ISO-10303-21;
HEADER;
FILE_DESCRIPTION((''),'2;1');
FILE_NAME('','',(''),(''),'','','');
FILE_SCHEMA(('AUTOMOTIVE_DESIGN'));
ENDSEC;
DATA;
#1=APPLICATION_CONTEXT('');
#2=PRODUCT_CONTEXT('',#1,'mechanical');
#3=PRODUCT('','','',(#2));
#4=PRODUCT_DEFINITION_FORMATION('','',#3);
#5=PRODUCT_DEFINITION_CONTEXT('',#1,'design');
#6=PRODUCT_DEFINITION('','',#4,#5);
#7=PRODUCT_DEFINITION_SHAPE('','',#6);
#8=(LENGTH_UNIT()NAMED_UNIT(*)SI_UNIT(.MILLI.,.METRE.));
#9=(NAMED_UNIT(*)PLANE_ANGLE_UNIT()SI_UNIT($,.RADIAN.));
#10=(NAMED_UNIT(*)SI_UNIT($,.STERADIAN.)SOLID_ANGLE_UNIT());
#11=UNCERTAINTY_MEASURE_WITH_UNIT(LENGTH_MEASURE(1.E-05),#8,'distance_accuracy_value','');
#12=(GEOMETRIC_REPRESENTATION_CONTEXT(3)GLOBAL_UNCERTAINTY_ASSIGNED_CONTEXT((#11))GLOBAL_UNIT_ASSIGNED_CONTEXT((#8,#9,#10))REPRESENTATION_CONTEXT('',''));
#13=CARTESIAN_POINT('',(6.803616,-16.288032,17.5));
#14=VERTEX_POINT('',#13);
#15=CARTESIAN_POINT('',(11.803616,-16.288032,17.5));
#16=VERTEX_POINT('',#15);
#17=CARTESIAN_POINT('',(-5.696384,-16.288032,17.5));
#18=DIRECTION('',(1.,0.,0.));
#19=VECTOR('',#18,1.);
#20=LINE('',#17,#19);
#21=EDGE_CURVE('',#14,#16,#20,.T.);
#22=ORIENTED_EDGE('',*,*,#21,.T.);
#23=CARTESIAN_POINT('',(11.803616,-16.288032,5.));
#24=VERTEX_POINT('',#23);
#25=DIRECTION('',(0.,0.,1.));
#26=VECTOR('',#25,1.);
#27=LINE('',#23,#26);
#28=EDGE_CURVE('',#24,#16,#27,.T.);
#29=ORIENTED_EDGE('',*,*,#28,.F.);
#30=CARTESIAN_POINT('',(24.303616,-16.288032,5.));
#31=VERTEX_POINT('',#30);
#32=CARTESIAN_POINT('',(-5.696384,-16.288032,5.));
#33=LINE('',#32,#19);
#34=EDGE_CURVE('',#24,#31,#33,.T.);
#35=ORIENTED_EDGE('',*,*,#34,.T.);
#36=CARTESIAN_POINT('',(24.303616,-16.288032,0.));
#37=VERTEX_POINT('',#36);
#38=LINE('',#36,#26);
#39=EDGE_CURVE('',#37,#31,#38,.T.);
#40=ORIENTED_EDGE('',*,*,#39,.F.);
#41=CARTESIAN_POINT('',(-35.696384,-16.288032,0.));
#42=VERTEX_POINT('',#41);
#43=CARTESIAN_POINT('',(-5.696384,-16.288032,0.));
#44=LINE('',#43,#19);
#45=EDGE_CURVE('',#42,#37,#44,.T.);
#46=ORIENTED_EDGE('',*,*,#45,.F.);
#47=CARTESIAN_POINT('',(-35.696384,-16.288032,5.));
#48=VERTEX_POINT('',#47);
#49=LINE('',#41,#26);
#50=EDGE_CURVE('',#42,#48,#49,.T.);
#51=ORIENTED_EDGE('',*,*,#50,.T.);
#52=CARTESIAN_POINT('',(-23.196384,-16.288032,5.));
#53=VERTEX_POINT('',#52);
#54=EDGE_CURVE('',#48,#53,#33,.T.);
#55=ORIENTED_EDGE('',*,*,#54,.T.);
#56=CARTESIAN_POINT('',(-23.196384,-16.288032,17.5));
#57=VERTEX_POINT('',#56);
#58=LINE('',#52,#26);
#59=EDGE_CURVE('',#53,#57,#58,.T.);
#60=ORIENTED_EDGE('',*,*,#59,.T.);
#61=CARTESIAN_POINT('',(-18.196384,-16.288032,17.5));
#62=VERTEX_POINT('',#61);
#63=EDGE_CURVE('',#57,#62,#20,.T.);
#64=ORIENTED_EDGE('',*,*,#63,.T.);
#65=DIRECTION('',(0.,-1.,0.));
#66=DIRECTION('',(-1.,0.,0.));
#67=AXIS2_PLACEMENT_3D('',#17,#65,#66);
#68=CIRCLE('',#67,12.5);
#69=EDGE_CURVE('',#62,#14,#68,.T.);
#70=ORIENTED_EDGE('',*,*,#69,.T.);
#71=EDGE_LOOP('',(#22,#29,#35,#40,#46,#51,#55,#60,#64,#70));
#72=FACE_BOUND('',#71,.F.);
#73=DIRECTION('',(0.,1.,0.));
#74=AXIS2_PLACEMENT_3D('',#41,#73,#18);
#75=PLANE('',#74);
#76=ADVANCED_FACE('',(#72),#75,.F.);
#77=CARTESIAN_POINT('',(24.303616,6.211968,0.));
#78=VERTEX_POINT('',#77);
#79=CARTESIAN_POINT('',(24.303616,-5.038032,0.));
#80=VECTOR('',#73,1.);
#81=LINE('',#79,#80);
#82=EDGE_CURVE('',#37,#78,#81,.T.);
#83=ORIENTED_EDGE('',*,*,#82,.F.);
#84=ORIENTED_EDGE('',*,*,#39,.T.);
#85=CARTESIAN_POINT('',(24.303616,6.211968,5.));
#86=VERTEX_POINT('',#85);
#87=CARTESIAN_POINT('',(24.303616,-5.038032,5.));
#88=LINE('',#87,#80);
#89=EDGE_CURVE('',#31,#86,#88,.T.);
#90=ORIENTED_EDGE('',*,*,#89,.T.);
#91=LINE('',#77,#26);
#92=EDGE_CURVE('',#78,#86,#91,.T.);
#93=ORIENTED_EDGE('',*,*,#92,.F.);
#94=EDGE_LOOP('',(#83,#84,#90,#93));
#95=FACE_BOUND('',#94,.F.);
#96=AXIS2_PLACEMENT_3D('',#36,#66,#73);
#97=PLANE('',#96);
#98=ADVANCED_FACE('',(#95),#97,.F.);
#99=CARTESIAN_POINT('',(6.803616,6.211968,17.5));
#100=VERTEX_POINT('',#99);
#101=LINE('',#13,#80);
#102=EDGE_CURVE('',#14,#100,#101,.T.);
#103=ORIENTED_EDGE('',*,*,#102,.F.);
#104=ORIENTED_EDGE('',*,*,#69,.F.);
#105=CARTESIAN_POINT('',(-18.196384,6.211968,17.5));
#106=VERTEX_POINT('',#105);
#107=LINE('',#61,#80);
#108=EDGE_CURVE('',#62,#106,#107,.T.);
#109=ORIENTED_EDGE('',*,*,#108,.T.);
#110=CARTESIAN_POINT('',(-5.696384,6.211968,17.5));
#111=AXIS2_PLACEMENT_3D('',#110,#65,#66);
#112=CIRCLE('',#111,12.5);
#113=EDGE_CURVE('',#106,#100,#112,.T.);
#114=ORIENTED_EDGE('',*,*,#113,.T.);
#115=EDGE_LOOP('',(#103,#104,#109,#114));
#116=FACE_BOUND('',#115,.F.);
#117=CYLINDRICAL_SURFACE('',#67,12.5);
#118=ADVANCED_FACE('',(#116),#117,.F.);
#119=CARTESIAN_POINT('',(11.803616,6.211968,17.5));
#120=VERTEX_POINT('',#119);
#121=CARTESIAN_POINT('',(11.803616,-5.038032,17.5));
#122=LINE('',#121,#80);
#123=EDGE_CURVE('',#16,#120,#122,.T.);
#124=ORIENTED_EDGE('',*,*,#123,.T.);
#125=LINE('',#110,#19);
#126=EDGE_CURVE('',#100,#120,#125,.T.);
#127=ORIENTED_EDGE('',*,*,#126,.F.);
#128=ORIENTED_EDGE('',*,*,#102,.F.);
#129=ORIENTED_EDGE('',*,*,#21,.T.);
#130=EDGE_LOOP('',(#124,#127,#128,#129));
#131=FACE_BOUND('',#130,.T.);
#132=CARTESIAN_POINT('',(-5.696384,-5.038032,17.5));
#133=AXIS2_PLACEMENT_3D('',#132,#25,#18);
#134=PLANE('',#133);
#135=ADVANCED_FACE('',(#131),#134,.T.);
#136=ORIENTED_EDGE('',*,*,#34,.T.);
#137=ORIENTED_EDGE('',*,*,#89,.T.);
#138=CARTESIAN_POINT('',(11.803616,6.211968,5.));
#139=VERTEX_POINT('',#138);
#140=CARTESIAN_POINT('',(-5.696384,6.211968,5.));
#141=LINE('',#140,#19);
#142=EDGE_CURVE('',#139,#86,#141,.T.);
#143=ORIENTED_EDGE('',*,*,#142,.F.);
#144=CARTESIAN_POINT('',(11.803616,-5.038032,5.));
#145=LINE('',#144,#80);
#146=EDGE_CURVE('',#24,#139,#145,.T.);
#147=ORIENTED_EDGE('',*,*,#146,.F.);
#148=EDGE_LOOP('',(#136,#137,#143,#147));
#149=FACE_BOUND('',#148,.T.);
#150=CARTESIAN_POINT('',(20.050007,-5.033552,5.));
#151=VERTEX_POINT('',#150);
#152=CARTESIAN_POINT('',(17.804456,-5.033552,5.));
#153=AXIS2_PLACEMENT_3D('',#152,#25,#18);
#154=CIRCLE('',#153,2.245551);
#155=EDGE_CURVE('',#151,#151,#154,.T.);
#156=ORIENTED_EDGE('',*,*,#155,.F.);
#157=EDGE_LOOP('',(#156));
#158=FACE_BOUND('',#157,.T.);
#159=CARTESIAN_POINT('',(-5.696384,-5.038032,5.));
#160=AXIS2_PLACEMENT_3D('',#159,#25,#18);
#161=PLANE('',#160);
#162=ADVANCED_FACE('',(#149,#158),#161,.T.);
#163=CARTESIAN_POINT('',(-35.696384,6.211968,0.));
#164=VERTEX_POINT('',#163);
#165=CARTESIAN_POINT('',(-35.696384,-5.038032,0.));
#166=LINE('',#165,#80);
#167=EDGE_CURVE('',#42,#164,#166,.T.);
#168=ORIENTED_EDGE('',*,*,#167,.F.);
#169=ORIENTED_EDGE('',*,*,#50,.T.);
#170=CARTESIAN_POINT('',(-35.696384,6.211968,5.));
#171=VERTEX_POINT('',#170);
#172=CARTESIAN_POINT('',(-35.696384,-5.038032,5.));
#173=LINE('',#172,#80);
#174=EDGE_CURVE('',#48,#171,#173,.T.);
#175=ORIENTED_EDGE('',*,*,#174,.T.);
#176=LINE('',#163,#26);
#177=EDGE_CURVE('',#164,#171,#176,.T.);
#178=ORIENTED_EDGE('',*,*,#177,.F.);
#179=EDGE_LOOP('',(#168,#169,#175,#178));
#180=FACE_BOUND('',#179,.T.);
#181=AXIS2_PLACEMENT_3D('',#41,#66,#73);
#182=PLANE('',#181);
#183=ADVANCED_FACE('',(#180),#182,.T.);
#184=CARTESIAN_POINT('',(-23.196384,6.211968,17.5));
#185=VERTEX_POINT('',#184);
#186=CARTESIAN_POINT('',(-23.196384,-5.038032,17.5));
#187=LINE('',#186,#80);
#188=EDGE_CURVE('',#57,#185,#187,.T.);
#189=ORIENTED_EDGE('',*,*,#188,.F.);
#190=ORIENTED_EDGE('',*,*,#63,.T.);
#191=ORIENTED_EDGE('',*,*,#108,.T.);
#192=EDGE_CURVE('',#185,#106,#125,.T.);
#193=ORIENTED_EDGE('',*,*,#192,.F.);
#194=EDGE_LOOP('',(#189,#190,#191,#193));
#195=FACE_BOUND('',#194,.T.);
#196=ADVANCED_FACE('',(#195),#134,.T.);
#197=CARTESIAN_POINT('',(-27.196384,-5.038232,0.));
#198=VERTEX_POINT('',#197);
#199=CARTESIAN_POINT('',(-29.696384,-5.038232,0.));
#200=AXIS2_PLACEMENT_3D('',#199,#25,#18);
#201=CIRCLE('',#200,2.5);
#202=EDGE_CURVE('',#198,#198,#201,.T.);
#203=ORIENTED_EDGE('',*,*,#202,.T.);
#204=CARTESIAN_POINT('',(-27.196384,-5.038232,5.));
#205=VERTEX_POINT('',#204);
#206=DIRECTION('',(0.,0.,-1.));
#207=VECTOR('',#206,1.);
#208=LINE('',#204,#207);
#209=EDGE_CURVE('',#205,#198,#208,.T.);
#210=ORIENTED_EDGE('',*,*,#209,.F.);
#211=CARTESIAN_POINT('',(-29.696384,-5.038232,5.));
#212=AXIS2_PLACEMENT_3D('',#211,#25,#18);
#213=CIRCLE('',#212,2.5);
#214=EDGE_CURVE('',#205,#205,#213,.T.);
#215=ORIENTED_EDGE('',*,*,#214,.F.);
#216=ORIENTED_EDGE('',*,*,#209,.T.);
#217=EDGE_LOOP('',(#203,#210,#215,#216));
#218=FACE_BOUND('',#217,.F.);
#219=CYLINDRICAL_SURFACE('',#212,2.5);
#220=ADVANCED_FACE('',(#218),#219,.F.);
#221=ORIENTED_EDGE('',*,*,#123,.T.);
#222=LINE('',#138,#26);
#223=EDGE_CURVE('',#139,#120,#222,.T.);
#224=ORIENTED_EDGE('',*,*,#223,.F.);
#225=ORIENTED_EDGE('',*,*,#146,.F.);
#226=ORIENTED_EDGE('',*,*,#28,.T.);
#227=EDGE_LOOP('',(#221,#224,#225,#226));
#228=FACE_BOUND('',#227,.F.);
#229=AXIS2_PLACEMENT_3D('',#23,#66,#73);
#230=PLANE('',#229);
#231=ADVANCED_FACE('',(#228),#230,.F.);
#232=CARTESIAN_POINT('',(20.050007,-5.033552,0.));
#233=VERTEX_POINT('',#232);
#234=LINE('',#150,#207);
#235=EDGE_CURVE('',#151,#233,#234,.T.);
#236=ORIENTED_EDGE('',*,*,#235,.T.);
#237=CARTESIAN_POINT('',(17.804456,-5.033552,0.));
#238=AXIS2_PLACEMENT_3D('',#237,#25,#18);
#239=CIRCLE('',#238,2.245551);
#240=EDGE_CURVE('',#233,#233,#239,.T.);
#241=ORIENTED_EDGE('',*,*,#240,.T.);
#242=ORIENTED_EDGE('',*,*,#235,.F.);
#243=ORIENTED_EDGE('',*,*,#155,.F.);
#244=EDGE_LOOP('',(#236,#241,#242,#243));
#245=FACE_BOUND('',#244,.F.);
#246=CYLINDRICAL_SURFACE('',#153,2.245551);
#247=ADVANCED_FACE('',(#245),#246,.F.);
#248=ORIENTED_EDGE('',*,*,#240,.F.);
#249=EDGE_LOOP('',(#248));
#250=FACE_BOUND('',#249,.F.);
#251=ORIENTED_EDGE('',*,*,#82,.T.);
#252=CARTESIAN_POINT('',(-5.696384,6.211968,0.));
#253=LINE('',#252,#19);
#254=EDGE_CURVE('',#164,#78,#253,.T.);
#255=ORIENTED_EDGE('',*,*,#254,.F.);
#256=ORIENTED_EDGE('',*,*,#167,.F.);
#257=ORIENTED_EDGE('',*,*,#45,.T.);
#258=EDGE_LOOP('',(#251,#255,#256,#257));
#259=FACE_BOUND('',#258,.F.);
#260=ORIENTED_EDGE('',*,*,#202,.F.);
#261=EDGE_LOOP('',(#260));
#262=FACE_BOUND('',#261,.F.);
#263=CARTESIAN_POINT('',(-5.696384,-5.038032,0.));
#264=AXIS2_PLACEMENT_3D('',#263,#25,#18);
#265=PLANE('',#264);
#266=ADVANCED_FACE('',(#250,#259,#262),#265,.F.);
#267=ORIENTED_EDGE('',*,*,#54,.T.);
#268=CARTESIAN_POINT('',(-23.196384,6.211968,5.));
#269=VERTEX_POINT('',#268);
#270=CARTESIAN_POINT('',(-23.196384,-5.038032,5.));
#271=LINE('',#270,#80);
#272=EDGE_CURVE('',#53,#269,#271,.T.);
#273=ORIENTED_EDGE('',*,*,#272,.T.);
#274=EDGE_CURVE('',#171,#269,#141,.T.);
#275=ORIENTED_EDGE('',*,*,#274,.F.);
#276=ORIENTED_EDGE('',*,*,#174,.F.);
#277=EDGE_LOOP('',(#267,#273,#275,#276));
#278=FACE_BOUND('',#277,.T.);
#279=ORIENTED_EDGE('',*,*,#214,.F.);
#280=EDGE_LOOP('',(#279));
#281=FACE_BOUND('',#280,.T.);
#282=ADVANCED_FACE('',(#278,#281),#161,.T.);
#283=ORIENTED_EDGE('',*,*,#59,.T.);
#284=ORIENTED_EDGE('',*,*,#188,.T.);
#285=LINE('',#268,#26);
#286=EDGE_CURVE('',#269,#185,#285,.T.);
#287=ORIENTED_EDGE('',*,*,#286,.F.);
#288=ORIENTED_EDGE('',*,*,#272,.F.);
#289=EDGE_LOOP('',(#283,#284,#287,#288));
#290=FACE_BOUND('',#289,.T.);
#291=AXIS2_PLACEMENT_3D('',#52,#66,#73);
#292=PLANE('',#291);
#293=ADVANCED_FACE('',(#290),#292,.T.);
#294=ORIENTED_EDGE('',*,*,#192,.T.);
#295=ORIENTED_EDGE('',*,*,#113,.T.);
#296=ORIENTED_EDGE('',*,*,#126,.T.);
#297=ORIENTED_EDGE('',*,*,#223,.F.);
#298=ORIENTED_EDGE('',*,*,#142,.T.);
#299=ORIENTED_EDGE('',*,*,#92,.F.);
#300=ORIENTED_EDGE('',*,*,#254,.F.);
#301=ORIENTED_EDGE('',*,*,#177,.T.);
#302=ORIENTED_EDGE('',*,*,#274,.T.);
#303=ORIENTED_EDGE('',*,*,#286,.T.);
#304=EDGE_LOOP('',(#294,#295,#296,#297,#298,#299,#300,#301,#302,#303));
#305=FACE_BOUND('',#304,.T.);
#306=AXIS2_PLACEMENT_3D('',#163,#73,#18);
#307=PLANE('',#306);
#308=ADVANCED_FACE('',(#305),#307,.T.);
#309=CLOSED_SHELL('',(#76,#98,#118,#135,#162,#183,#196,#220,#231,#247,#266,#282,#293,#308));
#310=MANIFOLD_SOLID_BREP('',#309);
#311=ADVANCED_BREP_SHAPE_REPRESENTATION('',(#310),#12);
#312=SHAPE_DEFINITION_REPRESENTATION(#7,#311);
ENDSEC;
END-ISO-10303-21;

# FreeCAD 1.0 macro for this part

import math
import FreeCAD as App
import Part
import Sketcher
from FreeCAD import Vector
Q = App.Units.Quantity


def add_polygon(sketch, points):
    """Adds a closed chain of lines whose ends are joined by coincident constraints."""
    first, n = sketch.GeometryCount, len(points)
    for a, b in zip(points, points[1:] + points[:1]):
        sketch.addGeometry(Part.LineSegment(App.Vector(*a, 0), App.Vector(*b, 0)), False)
    for i in range(n):
        sketch.addConstraint(Sketcher.Constraint("Coincident", first + i, 2, first + (i + 1) % n, 1))

doc = App.newDocument("Part")
body = doc.addObject("PartDesign::Body", "Body")

sketch1 = doc.addObject("Sketcher::SketchObject", "Sketch")
body.addObject(sketch1)
sketch1.AttachmentSupport = (doc.XY_Plane, [""])
sketch1.MapMode = "FlatFace"
add_polygon(sketch1, [(-35.696384, 6.211968), (-35.696384, -16.288032), (24.303616, -16.288032), (24.303616, 6.211968)])
sketch1.addConstraint(Sketcher.Constraint("Vertical", 0))
sketch1.addConstraint(Sketcher.Constraint("Horizontal", 1))
sketch1.addConstraint(Sketcher.Constraint("Vertical", 2))
sketch1.addConstraint(Sketcher.Constraint("Horizontal", 3))
sketch1.addConstraint(Sketcher.Constraint("DistanceX", 1, 1, 1, 2, Q("60 mm")))
sketch1.addConstraint(Sketcher.Constraint("DistanceY", 0, 2, 0, 1, Q("22.5 mm")))
sketch1.addConstraint(Sketcher.Constraint("DistanceX", 0, 2, -1, 1, Q("35.696384 mm")))
sketch1.addConstraint(Sketcher.Constraint("DistanceY", 0, 2, -1, 1, Q("16.288032 mm")))
pad1 = doc.addObject("PartDesign::Pad", "Pad")
body.addObject(pad1)
pad1.Profile = sketch1
pad1.Length = 5

sketch2 = doc.addObject("Sketcher::SketchObject", "Sketch001")
body.addObject(sketch2)
sketch2.AttachmentSupport = (doc.XY_Plane, [""])
sketch2.MapMode = "FlatFace"
sketch2.AttachmentOffset = App.Placement(Vector(0, 0, 5), App.Rotation())
add_polygon(sketch2, [(-23.196384, 6.211968), (-23.196384, -16.288032), (11.803616, -16.288032), (11.803616, 6.211968)])
sketch2.addConstraint(Sketcher.Constraint("Vertical", 0))
sketch2.addConstraint(Sketcher.Constraint("Horizontal", 1))
sketch2.addConstraint(Sketcher.Constraint("Vertical", 2))
sketch2.addConstraint(Sketcher.Constraint("Horizontal", 3))
sketch2.addConstraint(Sketcher.Constraint("DistanceX", 1, 1, 1, 2, Q("35 mm")))
sketch2.addConstraint(Sketcher.Constraint("DistanceY", 0, 2, 0, 1, Q("22.5 mm")))
sketch2.addConstraint(Sketcher.Constraint("DistanceX", 0, 2, -1, 1, Q("23.196384 mm")))
sketch2.addConstraint(Sketcher.Constraint("DistanceY", 0, 2, -1, 1, Q("16.288032 mm")))
pad2 = doc.addObject("PartDesign::Pad", "Pad001")
body.addObject(pad2)
pad2.Profile = sketch2
pad2.Length = 12.5

sketch3 = doc.addObject("Sketcher::SketchObject", "Sketch002")
body.addObject(sketch3)
sketch3.AttachmentSupport = (doc.XZ_Plane, [""])
sketch3.MapMode = "FlatFace"
sketch3.AttachmentOffset = App.Placement(Vector(0, 0, 16.288032), App.Rotation())
sketch3.addGeometry(Part.LineSegment(Vector(6.803616, 17.5, 0), Vector(-18.196384, 17.5, 0)), False)
sketch3.addGeometry(Part.ArcOfCircle(Part.Circle(Vector(-5.696384, 17.5, 0), Vector(0, 0, 1), 12.5), math.radians(180), math.radians(360)), False)
sketch3.addConstraint(Sketcher.Constraint("Coincident", 0, 1, 1, 2))
sketch3.addConstraint(Sketcher.Constraint("Coincident", 1, 1, 0, 2))
sketch3.addConstraint(Sketcher.Constraint("Horizontal", 0))
sketch3.addConstraint(Sketcher.Constraint("Horizontal", 1, 3, 0, 1))
sketch3.addConstraint(Sketcher.Constraint("Radius", 1, Q("12.5 mm")))
sketch3.addConstraint(Sketcher.Constraint("DistanceY", -1, 1, 1, 3, Q("17.5 mm")))
sketch3.addConstraint(Sketcher.Constraint("DistanceX", 1, 3, -1, 1, Q("5.696384 mm")))
pocket1 = doc.addObject("PartDesign::Pocket", "Pocket")
body.addObject(pocket1)
pocket1.Profile = sketch3
pocket1.Type = "ThroughAll"

sketch4 = doc.addObject("Sketcher::SketchObject", "Sketch003")
body.addObject(sketch4)
sketch4.AttachmentSupport = (doc.XY_Plane, [""])
sketch4.MapMode = "FlatFace"
sketch4.AttachmentOffset = App.Placement(Vector(0, 0, 5), App.Rotation())
sketch4.addGeometry(Part.Circle(Vector(-29.696384, -5.038232, 0), Vector(0, 0, 1), 2.5), False)
sketch4.addGeometry(Part.Circle(Vector(17.804456, -5.033552, 0), Vector(0, 0, 1), 2.245551), False)
sketch4.addConstraint(Sketcher.Constraint("Diameter", 0, Q("5 mm")))
sketch4.addConstraint(Sketcher.Constraint("Diameter", 1, Q("4.491102 mm")))
sketch4.addConstraint(Sketcher.Constraint("DistanceY", 0, 3, -1, 1, Q("5.038232 mm")))
sketch4.addConstraint(Sketcher.Constraint("DistanceX", 0, 3, 1, 3, Q("47.50084 mm")))
sketch4.addConstraint(Sketcher.Constraint("DistanceY", 0, 3, 1, 3, Q("0.00468 mm")))
sketch4.addConstraint(Sketcher.Constraint("DistanceX", 0, 3, -1, 1, Q("29.696384 mm")))
pocket2 = doc.addObject("PartDesign::Pocket", "Pocket001")
body.addObject(pocket2)
pocket2.Profile = sketch4
pocket2.Type = "ThroughAll"

doc.recompute()
